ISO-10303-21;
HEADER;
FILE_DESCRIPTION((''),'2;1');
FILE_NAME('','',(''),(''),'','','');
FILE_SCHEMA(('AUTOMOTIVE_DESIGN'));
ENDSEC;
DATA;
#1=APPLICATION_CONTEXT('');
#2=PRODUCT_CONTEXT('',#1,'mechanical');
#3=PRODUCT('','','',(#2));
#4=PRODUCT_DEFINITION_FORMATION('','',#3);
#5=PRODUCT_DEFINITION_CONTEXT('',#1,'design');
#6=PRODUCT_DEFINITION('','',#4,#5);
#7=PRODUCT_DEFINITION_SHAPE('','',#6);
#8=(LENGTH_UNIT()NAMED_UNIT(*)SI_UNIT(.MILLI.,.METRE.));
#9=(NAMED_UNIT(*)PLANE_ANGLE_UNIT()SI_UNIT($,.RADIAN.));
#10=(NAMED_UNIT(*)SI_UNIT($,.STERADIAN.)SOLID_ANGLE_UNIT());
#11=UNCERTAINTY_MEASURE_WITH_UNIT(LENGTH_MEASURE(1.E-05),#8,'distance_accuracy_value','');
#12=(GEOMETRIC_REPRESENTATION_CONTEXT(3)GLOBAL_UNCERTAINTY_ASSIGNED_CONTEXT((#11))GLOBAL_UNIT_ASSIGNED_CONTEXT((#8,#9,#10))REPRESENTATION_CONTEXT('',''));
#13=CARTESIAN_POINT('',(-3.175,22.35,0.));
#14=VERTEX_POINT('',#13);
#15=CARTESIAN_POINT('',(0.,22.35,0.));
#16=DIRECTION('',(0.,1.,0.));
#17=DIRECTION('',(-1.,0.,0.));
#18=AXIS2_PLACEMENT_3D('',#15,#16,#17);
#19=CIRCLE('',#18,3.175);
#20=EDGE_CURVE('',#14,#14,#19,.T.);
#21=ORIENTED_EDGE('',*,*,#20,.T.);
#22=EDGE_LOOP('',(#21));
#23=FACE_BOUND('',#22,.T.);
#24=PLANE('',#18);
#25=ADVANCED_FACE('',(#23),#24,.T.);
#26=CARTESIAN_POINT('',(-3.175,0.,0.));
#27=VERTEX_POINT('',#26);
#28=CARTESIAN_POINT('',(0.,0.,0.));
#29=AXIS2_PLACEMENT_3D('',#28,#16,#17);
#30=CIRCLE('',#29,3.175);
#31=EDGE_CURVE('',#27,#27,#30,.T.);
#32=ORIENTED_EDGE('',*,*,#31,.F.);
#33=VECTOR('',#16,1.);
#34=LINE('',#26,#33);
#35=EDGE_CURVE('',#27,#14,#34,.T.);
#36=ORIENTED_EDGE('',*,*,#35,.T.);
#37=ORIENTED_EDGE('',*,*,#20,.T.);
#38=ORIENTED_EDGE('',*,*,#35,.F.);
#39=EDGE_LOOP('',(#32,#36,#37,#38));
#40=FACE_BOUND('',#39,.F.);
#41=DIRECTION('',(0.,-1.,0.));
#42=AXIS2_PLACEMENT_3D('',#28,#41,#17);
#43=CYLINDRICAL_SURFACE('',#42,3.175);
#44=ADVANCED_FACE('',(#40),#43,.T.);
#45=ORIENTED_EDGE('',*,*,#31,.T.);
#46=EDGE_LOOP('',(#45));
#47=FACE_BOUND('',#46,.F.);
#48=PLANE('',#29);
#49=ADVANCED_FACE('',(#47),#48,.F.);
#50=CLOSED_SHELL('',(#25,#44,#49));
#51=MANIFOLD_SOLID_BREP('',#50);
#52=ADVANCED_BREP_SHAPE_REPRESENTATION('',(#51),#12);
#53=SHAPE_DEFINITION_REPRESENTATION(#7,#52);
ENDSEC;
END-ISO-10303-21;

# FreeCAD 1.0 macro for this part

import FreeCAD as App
import Part
import Sketcher
from FreeCAD import Vector
Q = App.Units.Quantity

doc = App.newDocument("Part")
body = doc.addObject("PartDesign::Body", "Body")

# Sketch on XZ plane
sketch1 = body.newObject("Sketcher::SketchObject", "Sketch")
sketch1.AttachmentSupport = (doc.getObject("XZ_Plane"), [""])
sketch1.MapMode = "FlatFace"
sketch1.addGeometry(Part.Circle(Vector(0, 0, 0), Vector(0, 0, 1), 3.2), False)
sketch1.addConstraint([
    Sketcher.Constraint("Coincident", 0, 3, -1, 1),
    Sketcher.Constraint("Diameter", 0, Q("0.25 in")),
])
pad1 = body.newObject("PartDesign::Pad", "Pad")
pad1.Profile = sketch1
pad1.Length = 22.35
pad1.Reversed = True

doc.recompute()
